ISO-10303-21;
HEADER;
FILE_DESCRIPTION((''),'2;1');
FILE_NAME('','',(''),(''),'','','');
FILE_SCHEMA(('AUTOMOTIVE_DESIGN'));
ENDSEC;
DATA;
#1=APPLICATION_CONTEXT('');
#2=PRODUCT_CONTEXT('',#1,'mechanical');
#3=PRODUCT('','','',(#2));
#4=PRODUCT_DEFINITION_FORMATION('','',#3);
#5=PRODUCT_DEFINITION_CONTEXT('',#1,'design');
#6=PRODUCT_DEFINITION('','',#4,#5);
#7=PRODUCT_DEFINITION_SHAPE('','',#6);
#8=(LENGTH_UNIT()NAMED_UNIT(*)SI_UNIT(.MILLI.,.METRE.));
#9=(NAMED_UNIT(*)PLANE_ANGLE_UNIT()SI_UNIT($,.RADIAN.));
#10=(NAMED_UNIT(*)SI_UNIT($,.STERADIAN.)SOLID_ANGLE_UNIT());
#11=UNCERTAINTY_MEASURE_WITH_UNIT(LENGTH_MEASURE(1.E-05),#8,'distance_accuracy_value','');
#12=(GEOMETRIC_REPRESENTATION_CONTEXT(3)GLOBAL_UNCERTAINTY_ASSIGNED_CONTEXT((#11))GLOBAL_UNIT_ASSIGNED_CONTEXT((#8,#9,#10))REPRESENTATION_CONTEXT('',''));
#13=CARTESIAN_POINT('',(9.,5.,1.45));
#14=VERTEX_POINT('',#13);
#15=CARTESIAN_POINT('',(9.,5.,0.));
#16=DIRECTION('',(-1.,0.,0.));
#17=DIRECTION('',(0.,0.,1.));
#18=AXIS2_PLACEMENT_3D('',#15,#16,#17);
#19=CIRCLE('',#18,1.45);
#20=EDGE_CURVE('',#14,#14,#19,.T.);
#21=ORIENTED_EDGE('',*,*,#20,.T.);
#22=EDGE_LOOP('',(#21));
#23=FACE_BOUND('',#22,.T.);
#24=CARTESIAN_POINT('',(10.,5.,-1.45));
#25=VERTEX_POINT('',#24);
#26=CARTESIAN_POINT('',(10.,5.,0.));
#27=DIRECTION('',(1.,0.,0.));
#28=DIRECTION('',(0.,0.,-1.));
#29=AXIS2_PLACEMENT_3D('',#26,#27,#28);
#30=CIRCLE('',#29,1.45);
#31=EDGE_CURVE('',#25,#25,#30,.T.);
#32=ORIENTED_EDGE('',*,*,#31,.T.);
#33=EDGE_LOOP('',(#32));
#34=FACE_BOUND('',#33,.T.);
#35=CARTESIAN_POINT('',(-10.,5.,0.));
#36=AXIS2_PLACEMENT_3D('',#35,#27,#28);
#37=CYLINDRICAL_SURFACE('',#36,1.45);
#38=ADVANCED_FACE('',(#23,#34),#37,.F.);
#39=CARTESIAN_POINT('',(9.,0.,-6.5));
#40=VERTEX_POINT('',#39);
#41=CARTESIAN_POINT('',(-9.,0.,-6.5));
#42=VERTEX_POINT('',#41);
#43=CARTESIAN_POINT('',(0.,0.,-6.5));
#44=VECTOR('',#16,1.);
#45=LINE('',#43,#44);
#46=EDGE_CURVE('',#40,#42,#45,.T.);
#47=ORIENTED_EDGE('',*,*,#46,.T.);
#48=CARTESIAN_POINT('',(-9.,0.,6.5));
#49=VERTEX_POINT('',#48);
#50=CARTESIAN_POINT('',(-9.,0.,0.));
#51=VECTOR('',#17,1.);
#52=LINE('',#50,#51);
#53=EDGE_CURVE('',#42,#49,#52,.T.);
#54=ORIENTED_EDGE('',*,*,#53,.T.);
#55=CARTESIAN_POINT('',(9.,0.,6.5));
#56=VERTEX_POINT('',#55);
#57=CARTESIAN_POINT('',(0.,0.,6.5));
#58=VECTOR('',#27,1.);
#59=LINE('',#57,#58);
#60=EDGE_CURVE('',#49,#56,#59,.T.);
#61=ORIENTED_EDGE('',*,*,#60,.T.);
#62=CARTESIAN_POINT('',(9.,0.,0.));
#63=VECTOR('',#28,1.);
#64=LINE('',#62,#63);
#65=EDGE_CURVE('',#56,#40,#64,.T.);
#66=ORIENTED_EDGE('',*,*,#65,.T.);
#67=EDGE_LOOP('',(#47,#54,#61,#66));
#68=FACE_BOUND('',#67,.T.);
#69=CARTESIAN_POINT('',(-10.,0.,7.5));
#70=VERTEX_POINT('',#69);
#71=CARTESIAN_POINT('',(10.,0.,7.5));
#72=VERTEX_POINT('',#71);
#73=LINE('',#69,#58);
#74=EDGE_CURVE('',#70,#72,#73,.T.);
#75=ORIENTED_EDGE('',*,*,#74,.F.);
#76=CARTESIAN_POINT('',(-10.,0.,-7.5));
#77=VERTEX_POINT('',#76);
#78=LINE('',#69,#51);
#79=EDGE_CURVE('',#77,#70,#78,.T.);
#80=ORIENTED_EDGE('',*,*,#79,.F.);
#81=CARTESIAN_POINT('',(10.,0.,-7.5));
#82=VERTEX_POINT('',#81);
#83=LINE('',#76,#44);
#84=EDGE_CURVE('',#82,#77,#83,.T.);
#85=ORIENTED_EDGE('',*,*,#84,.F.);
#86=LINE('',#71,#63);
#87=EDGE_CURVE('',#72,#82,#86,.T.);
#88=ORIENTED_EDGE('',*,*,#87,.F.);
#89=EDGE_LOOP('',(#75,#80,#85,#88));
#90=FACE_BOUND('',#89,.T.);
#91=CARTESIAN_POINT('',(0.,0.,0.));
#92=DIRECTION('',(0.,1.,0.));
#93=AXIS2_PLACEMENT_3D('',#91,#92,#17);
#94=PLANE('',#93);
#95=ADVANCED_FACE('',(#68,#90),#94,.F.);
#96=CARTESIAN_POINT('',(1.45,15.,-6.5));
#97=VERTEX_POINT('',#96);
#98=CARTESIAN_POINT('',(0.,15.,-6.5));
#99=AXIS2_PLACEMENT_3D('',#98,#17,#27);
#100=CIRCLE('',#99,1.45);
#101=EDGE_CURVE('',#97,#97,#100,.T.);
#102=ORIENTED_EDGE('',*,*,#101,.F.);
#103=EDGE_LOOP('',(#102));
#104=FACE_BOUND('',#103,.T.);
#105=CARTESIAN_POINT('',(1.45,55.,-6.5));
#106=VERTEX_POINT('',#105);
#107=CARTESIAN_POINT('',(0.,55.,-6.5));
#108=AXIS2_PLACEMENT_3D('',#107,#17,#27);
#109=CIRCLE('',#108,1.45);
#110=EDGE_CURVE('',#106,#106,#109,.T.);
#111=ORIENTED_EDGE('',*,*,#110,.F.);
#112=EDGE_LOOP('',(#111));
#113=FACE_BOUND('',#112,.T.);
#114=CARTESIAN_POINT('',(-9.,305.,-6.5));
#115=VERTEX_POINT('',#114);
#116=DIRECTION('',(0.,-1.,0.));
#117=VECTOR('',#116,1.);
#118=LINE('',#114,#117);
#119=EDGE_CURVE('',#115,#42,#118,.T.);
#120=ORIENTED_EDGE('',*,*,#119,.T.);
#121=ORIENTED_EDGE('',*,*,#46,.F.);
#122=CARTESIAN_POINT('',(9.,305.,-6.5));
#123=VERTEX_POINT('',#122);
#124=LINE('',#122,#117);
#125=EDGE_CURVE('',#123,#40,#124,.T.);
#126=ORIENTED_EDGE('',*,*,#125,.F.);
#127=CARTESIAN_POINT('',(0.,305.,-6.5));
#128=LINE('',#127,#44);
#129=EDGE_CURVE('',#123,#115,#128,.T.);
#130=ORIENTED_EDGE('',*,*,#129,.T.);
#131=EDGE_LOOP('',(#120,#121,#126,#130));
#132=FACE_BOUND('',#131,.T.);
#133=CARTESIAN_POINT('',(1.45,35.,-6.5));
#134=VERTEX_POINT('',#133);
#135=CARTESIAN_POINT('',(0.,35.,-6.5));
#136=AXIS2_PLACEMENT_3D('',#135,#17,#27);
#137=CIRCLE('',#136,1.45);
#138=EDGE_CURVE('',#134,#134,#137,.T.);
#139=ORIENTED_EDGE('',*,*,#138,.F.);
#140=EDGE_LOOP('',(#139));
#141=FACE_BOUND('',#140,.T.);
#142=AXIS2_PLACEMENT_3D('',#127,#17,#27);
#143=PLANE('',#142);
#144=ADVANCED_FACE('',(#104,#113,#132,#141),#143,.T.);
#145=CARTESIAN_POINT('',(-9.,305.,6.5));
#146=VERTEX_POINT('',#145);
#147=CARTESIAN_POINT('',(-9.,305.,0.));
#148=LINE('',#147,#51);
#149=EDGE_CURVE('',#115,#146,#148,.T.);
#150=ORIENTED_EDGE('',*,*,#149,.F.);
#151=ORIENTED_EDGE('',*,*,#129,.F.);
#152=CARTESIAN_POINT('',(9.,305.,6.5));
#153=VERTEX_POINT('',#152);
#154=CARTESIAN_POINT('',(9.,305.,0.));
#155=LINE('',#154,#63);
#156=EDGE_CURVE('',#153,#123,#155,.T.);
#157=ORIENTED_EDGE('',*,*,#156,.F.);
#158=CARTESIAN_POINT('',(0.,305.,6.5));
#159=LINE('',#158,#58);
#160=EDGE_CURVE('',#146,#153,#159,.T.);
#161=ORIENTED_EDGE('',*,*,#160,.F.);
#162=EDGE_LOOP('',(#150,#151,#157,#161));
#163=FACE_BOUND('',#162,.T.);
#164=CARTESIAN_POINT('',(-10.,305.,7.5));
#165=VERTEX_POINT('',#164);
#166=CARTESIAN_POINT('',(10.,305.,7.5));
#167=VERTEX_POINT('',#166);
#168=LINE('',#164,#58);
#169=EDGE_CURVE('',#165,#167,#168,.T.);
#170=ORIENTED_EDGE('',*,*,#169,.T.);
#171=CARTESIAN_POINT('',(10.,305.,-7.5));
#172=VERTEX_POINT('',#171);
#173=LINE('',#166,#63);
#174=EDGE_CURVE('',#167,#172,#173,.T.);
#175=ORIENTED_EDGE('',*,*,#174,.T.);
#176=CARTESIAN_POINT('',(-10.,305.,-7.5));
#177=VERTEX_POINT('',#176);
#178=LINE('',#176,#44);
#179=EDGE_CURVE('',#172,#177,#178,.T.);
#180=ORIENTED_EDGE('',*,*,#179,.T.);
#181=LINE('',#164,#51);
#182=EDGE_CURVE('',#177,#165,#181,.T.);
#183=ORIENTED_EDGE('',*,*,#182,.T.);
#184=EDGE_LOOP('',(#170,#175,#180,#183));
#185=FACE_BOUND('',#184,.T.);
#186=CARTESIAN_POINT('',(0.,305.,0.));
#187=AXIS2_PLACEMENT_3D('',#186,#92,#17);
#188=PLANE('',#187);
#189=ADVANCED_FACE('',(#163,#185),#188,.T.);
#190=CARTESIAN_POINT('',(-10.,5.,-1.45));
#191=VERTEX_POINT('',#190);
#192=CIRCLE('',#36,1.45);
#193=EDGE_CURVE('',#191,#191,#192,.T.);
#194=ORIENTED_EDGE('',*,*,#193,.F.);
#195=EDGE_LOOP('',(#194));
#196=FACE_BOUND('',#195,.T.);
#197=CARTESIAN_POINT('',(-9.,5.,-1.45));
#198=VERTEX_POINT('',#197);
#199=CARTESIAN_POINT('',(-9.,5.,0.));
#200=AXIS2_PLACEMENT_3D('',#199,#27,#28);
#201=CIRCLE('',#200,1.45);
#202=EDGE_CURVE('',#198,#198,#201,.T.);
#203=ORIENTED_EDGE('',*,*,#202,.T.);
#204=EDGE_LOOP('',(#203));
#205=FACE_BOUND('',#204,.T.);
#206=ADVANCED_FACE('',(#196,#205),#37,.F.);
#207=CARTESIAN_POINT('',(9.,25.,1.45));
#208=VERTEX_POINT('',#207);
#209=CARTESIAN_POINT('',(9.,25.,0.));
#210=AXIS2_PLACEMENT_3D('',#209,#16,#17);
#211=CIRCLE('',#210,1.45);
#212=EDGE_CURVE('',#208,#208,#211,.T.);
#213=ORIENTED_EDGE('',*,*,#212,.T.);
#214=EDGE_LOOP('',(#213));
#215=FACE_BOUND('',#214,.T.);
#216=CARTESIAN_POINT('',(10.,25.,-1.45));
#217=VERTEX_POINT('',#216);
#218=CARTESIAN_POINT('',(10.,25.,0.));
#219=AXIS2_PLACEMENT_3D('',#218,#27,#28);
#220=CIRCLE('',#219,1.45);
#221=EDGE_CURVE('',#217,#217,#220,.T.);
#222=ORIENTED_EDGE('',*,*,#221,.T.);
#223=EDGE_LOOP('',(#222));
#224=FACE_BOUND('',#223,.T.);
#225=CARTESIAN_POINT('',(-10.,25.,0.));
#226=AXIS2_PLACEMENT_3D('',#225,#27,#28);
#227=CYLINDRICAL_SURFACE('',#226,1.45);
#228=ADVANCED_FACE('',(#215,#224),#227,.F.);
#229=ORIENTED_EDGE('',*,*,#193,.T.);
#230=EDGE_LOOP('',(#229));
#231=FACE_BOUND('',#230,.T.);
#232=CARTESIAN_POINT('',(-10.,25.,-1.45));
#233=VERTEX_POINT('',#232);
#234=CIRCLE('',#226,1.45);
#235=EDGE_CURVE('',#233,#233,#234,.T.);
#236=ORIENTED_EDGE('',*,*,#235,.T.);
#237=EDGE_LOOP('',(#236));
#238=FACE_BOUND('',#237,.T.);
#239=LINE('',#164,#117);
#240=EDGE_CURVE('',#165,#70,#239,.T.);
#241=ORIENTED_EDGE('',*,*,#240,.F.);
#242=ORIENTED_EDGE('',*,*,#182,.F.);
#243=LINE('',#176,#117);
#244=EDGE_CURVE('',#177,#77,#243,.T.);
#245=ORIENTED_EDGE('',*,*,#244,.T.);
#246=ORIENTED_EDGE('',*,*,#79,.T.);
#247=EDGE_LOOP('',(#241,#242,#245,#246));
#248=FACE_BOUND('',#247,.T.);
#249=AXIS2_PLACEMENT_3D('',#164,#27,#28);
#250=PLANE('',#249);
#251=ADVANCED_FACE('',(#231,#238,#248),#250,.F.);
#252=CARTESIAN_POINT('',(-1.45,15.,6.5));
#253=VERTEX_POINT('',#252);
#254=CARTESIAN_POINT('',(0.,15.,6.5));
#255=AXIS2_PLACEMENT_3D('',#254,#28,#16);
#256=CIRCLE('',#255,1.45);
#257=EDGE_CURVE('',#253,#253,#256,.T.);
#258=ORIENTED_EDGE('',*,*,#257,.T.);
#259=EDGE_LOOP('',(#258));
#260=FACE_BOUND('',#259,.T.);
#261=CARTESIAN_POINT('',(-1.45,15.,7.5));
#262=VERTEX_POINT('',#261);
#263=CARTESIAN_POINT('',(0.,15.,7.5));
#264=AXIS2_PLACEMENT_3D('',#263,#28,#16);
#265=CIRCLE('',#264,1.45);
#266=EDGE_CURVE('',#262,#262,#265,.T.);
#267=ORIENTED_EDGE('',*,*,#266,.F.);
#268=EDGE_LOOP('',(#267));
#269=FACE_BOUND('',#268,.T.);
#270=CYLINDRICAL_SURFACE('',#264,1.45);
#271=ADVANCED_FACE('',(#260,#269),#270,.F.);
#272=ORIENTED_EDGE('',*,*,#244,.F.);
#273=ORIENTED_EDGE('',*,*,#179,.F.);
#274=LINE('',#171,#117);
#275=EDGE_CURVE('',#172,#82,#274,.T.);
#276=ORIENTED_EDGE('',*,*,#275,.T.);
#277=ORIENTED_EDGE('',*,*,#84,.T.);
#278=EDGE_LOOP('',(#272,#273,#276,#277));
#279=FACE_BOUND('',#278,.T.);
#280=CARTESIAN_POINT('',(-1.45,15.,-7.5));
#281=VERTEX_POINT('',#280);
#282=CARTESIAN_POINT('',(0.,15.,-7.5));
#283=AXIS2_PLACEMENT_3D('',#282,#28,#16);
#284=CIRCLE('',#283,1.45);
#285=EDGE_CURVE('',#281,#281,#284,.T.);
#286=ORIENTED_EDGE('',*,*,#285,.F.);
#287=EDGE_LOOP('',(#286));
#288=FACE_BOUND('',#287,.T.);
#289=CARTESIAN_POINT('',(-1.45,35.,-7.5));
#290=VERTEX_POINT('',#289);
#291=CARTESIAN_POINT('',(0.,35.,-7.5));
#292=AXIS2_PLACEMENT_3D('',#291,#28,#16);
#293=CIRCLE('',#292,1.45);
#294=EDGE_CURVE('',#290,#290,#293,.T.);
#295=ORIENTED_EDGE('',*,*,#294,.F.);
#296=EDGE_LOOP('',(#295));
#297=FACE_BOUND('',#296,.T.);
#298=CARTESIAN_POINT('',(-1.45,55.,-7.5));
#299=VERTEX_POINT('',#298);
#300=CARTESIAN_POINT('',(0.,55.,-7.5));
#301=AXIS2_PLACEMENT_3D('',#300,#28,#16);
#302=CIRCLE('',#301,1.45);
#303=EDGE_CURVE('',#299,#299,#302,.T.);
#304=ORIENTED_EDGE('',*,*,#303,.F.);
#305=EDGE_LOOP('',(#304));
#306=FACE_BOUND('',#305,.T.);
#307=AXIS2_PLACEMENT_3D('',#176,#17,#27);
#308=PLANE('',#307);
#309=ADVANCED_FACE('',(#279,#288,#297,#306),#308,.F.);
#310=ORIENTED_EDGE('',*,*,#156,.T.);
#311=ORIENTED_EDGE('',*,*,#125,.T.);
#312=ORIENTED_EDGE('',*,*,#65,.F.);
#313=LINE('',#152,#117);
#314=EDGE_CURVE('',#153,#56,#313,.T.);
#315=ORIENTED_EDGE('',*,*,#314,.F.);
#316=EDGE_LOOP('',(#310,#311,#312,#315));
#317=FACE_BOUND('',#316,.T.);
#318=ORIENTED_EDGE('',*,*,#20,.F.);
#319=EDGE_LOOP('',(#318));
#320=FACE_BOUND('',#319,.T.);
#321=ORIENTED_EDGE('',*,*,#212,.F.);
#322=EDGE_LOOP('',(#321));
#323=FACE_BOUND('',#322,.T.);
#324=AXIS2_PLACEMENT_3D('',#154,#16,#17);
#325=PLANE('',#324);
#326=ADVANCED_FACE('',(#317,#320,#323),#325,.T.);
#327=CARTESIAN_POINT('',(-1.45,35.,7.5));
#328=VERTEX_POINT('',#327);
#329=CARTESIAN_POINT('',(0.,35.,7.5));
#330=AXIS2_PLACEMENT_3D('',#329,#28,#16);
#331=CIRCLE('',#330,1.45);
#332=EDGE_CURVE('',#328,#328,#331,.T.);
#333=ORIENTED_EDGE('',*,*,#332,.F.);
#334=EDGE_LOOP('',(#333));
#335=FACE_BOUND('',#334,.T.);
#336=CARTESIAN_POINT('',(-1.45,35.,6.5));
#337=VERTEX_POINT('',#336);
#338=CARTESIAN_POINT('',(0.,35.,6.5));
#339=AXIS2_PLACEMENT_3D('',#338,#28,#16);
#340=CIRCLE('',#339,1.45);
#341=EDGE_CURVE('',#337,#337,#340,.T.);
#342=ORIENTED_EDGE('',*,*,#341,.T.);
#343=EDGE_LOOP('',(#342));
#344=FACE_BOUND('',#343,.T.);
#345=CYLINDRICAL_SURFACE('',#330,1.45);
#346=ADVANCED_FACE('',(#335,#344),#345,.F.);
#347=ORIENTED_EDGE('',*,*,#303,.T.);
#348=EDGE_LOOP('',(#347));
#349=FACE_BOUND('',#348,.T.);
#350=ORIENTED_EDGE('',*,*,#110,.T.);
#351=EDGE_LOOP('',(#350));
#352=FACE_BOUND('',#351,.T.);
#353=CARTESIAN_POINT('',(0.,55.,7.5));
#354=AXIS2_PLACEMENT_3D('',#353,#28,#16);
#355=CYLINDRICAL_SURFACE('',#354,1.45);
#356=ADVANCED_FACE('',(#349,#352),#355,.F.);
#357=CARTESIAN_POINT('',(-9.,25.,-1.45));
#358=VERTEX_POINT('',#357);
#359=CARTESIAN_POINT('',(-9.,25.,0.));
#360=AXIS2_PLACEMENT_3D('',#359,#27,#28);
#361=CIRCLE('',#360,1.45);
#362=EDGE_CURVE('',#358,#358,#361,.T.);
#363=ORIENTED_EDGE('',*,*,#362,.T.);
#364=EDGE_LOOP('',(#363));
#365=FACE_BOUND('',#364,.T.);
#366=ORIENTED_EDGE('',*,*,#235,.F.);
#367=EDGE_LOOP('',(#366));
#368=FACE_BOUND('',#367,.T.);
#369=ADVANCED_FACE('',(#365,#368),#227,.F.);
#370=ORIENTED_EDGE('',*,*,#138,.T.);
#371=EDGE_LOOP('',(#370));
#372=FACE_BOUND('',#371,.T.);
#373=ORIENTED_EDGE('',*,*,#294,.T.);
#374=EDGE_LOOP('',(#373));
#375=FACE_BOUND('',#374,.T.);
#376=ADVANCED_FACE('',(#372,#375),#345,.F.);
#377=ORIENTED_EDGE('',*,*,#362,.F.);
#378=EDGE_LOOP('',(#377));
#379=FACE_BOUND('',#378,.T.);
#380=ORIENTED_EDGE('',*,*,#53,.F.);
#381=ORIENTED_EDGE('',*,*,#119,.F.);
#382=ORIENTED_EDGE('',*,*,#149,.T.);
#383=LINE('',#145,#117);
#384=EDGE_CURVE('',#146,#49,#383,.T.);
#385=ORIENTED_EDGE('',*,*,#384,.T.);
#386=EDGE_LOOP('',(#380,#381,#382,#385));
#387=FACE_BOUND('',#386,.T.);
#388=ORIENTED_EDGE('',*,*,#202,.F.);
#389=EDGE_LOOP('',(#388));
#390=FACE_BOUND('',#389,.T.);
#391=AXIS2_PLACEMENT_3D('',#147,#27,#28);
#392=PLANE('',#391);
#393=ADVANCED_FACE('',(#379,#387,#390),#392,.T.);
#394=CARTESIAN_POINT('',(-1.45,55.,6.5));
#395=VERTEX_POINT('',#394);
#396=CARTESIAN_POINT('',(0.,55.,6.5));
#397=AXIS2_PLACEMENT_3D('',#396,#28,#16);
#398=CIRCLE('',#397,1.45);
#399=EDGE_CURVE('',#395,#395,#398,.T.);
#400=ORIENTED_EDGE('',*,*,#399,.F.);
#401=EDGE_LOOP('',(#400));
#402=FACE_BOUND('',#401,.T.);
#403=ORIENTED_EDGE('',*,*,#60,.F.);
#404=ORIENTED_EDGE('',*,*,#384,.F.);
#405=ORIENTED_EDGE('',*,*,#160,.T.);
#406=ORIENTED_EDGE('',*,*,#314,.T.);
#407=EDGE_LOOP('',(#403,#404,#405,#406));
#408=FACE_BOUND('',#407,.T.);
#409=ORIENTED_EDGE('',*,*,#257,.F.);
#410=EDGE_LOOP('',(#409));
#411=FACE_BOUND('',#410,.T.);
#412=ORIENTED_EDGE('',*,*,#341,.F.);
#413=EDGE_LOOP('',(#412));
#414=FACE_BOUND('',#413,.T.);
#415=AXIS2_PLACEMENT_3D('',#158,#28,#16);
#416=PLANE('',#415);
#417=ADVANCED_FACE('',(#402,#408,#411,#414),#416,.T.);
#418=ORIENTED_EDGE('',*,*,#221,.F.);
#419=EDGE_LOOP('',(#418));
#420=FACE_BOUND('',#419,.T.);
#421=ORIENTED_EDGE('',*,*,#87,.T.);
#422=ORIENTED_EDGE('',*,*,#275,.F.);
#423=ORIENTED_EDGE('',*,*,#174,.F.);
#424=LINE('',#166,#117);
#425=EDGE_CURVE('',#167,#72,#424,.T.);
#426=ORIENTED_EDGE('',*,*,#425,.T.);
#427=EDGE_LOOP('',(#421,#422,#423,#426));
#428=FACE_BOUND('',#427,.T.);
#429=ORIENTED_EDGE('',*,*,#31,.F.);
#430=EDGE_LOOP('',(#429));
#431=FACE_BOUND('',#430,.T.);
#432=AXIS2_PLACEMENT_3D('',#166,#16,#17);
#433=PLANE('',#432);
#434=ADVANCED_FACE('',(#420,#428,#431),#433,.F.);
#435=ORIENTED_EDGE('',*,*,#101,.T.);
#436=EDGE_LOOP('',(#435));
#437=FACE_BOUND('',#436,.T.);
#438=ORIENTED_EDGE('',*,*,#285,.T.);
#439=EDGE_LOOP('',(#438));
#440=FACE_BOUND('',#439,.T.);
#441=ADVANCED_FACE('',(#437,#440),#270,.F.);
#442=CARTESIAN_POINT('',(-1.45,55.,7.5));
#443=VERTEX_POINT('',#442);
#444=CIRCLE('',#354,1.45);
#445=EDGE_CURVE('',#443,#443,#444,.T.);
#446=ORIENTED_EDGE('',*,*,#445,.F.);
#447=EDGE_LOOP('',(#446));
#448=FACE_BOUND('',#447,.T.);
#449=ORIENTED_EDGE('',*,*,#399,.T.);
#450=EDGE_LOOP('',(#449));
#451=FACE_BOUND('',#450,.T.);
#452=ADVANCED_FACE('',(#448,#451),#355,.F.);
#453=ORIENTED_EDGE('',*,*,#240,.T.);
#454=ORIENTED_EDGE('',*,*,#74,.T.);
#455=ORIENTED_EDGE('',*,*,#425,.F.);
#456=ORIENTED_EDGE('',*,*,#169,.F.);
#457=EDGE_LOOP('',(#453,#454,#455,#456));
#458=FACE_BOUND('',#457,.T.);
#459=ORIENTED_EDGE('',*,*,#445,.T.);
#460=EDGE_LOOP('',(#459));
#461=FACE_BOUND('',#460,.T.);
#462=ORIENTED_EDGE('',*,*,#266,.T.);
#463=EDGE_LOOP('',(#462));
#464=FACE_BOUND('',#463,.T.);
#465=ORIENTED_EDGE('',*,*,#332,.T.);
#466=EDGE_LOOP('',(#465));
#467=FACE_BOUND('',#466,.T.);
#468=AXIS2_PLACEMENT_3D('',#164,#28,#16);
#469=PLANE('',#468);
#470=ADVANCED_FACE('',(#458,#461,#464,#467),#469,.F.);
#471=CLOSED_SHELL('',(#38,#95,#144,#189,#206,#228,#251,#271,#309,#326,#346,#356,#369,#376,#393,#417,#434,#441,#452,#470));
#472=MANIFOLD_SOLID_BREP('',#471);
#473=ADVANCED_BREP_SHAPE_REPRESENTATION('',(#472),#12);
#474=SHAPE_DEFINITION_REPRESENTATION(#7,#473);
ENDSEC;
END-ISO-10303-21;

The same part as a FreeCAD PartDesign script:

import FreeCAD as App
import Part
import Sketcher

V = App.Vector
Q = App.Units.Quantity


def add_polygon(sketch, points):
    """Adds a closed chain of lines whose ends are joined by coincident constraints."""
    first, n = sketch.GeometryCount, len(points)
    for a, b in zip(points, points[1:] + points[:1]):
        sketch.addGeometry(Part.LineSegment(App.Vector(*a, 0), App.Vector(*b, 0)), False)
    for i in range(n):
        sketch.addConstraint(Sketcher.Constraint("Coincident", first + i, 2, first + (i + 1) % n, 1))

doc = App.newDocument("Part")
params = doc.addObject("Spreadsheet::Sheet", "Params")
for row, (alias, value) in enumerate([
    ("sketch1_width", "20 mm"),
    ("sketch1_width2", "18 mm"),
    ("sketch1_height", "15 mm"),
    ("sketch1_height2", "13 mm"),
    ("pad1_length", "305 mm"),
    ("sketch2_diameter", "2.9 mm"),
    ("sketch3_diameter", "2.9 mm"),
], start=1):
    params.set(f"A{row}", alias)
    params.set(f"B{row}", "=" + value)
    params.setAlias(f"B{row}", alias)

body = doc.addObject("PartDesign::Body", "Body")

# Sketch on XZ plane
sketch1 = body.newObject("Sketcher::SketchObject", "Sketch")
sketch1.AttachmentSupport = (doc.getObject("XZ_Plane"), [""])
sketch1.MapMode = "FlatFace"
add_polygon(sketch1, [(-10, -7.5), (-10, 7.5), (10, 7.5), (10, -7.5)])  # lines 0-3
add_polygon(sketch1, [(9, 6.5), (-9, 6.5), (-9, -6.5), (9, -6.5)])  # lines 4-7
sketch1.addConstraint([
    Sketcher.Constraint("Vertical", 0),
    Sketcher.Constraint("Horizontal", 1),
    Sketcher.Constraint("Vertical", 2),
    Sketcher.Constraint("Horizontal", 3),
    Sketcher.Constraint("Horizontal", 4),
    Sketcher.Constraint("Vertical", 5),
    Sketcher.Constraint("Horizontal", 6),
    Sketcher.Constraint("Vertical", 7),
    Sketcher.Constraint("Symmetric", 0, 2, 2, 2, -1, 1),
    Sketcher.Constraint("Symmetric", 4, 2, 6, 2, -1, 1),
    Sketcher.Constraint("DistanceX", 1, 1, 1, 2, Q("20 mm")),
    Sketcher.Constraint("DistanceX", 4, 2, 4, 1, Q("18 mm")),
    Sketcher.Constraint("DistanceY", 0, 1, 0, 2, Q("15 mm")),
    Sketcher.Constraint("DistanceY", 5, 2, 5, 1, Q("13 mm")),
])
sketch1.setExpression("Constraints[18]", "Params.sketch1_width")
sketch1.setExpression("Constraints[19]", "Params.sketch1_width2")
sketch1.setExpression("Constraints[20]", "Params.sketch1_height")
sketch1.setExpression("Constraints[21]", "Params.sketch1_height2")
pad1 = body.newObject("PartDesign::Pad", "Pad")
pad1.Profile = sketch1
pad1.setExpression("Length", "Params.pad1_length")
pad1.Reversed = True

# Sketch on YZ plane
sketch2 = body.newObject("Sketcher::SketchObject", "Sketch001")
sketch2.AttachmentSupport = (doc.getObject("YZ_Plane"), [""])
sketch2.MapMode = "FlatFace"
sketch2.AttachmentOffset = App.Placement(V(0, 0, 10), App.Rotation())
sketch2.addGeometry([
    Part.Circle(V(5, 0, 0), V(0, 0, 1), 1.45),
    Part.Circle(V(25, 0, 0), V(0, 0, 1), 1.45),
], False)
sketch2.addConstraint([
    Sketcher.Constraint("Equal", 0, 1),
    Sketcher.Constraint("PointOnObject", 0, 3, -1),
    Sketcher.Constraint("PointOnObject", 1, 3, -1),
    Sketcher.Constraint("Diameter", 0, Q("2.9 mm")),
    Sketcher.Constraint("DistanceX", -1, 1, 0, 3, Q("5 mm")),
    Sketcher.Constraint("DistanceX", -1, 1, 1, 3, Q("25 mm")),
])
sketch2.setExpression("Constraints[3]", "Params.sketch2_diameter")
pocket1 = body.newObject("PartDesign::Pocket", "Pocket")
pocket1.Profile = sketch2
pocket1.Type = "ThroughAll"

# Sketch on XY plane
sketch3 = body.newObject("Sketcher::SketchObject", "Sketch002")
sketch3.AttachmentSupport = (doc.getObject("XY_Plane"), [""])
sketch3.MapMode = "FlatFace"
sketch3.AttachmentOffset = App.Placement(V(0, 0, -7.5), App.Rotation())
sketch3.addGeometry([
    Part.Circle(V(0, 15, 0), V(0, 0, 1), 1.45),
    Part.Circle(V(0, 35, 0), V(0, 0, 1), 1.45),
    Part.Circle(V(0, 55, 0), V(0, 0, 1), 1.45),
], False)
sketch3.addConstraint([
    Sketcher.Constraint("Equal", 0, 1),
    Sketcher.Constraint("Equal", 1, 2),
    Sketcher.Constraint("PointOnObject", 0, 3, -2),
    Sketcher.Constraint("PointOnObject", 1, 3, -2),
    Sketcher.Constraint("PointOnObject", 2, 3, -2),
    Sketcher.Constraint("Diameter", 0, Q("2.9 mm")),
    Sketcher.Constraint("DistanceY", -1, 1, 0, 3, Q("15 mm")),
    Sketcher.Constraint("DistanceY", -1, 1, 1, 3, Q("35 mm")),
    Sketcher.Constraint("DistanceY", -1, 1, 2, 3, Q("55 mm")),
])
sketch3.setExpression("Constraints[5]", "Params.sketch3_diameter")
pocket2 = body.newObject("PartDesign::Pocket", "Pocket001")
pocket2.Profile = sketch3
pocket2.Type = "ThroughAll"
pocket2.Reversed = True

doc.recompute()
